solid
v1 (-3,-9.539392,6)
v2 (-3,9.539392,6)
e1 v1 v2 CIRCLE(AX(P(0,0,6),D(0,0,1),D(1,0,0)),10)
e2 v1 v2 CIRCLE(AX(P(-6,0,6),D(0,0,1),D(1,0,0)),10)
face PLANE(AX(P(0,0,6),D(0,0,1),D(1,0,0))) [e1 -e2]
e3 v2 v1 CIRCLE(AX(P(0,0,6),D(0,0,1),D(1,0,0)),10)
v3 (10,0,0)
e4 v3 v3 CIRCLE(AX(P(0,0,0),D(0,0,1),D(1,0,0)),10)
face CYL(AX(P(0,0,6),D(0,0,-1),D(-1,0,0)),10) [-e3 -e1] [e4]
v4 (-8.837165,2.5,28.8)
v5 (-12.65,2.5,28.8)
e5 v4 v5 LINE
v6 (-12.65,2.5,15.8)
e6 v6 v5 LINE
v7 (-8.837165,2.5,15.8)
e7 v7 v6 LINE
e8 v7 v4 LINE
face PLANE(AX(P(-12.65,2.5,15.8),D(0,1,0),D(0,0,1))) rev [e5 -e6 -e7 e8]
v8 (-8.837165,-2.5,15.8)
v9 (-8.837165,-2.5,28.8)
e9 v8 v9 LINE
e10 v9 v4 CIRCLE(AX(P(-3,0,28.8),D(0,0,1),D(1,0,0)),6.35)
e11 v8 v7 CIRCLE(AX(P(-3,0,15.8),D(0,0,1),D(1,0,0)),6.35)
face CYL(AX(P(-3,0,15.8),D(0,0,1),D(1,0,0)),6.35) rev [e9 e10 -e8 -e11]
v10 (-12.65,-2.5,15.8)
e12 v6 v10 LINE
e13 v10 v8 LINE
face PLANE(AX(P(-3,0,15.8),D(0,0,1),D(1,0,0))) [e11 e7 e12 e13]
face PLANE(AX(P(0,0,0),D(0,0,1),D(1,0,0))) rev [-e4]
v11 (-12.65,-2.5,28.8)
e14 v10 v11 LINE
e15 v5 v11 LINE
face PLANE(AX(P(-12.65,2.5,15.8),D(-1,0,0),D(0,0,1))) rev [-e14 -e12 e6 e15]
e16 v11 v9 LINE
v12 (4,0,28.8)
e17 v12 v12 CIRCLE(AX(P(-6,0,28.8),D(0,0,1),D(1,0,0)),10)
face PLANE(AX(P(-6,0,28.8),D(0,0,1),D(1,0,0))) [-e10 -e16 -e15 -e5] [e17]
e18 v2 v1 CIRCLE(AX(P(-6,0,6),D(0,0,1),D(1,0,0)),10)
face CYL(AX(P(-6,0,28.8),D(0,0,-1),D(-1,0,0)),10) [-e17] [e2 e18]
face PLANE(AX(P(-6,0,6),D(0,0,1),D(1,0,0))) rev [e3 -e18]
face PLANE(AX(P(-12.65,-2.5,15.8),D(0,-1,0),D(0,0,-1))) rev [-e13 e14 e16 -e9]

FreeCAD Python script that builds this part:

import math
import FreeCAD as App
import Part
import Sketcher

V = App.Vector

doc = App.newDocument("Part")
body = doc.addObject("PartDesign::Body", "Body")

# Sketch on XY plane
sketch1 = doc.addObject("Sketcher::SketchObject", "Sketch")
body.addObject(sketch1)
sketch1.AttachmentSupport = (doc.XY_Plane, [""])
sketch1.MapMode = "FlatFace"
sketch1.addGeometry(Part.Circle(V(0, 0, 0), V(0, 0, 1), 10), False)
sketch1.addConstraint(Sketcher.Constraint("Coincident", 0, 3, -1, 1))
sketch1.addConstraint(Sketcher.Constraint("Diameter", 0, 20.0))
pad1 = doc.addObject("PartDesign::Pad", "Pad")
body.addObject(pad1)
pad1.Profile = sketch1
pad1.Length = 6

# Sketch on XY plane
sketch2 = doc.addObject("Sketcher::SketchObject", "Sketch001")
body.addObject(sketch2)
sketch2.AttachmentSupport = (doc.XY_Plane, [""])
sketch2.MapMode = "FlatFace"
sketch2.AttachmentOffset = App.Placement(V(0, 0, 6), App.Rotation())
sketch2.addGeometry(Part.Circle(V(-6, 0, 0), V(0, 0, 1), 10), False)
sketch2.addConstraint(Sketcher.Constraint("PointOnObject", 0, 3, -1))
sketch2.addConstraint(Sketcher.Constraint("Diameter", 0, 20.0))
sketch2.addConstraint(Sketcher.Constraint("DistanceX", 0, 3, -1, 1, 6.0))
pad2 = doc.addObject("PartDesign::Pad", "Pad001")
body.addObject(pad2)
pad2.Profile = sketch2
pad2.Length = 22.8

# Sketch on XY plane
sketch3 = doc.addObject("Sketcher::SketchObject", "Sketch002")
body.addObject(sketch3)
sketch3.AttachmentSupport = (doc.XY_Plane, [""])
sketch3.MapMode = "FlatFace"
sketch3.AttachmentOffset = App.Placement(V(0, 0, 28.8), App.Rotation())
sketch3.addGeometry(Part.LineSegment(V(-8.837165, 2.5, 0), V(-12.65, 2.5, 0)), False)
sketch3.addGeometry(Part.LineSegment(V(-12.65, 2.5, 0), V(-12.65, -2.5, 0)), False)
sketch3.addGeometry(Part.LineSegment(V(-12.65, -2.5, 0), V(-8.837165, -2.5, 0)), False)
sketch3.addGeometry(Part.ArcOfCircle(Part.Circle(V(-3, 0, 0), V(0, 0, 1), 6.35), math.radians(-156.81503), math.radians(156.81503)), False)
sketch3.addConstraint(Sketcher.Constraint("Coincident", 0, 2, 1, 1))
sketch3.addConstraint(Sketcher.Constraint("Coincident", 1, 2, 2, 1))
sketch3.addConstraint(Sketcher.Constraint("Coincident", 2, 2, 3, 1))
sketch3.addConstraint(Sketcher.Constraint("Coincident", 3, 2, 0, 1))
sketch3.addConstraint(Sketcher.Constraint("Horizontal", 0))
sketch3.addConstraint(Sketcher.Constraint("Vertical", 1))
sketch3.addConstraint(Sketcher.Constraint("Horizontal", 2))
sketch3.addConstraint(Sketcher.Constraint("Symmetric", 2, 2, 3, 2, -1))
sketch3.addConstraint(Sketcher.Constraint("DistanceY", 1, 2, 1, 1, 5.0))
sketch3.addConstraint(Sketcher.Constraint("Radius", 3, 6.35))
sketch3.addConstraint(Sketcher.Constraint("DistanceX", 3, 3, -1, 1, 3.0))
sketch3.addConstraint(Sketcher.Constraint("DistanceX", 0, 2, -1, 1, 12.65))
pocket1 = doc.addObject("PartDesign::Pocket", "Pocket")
body.addObject(pocket1)
pocket1.Profile = sketch3
pocket1.Length = 13

doc.recompute()
